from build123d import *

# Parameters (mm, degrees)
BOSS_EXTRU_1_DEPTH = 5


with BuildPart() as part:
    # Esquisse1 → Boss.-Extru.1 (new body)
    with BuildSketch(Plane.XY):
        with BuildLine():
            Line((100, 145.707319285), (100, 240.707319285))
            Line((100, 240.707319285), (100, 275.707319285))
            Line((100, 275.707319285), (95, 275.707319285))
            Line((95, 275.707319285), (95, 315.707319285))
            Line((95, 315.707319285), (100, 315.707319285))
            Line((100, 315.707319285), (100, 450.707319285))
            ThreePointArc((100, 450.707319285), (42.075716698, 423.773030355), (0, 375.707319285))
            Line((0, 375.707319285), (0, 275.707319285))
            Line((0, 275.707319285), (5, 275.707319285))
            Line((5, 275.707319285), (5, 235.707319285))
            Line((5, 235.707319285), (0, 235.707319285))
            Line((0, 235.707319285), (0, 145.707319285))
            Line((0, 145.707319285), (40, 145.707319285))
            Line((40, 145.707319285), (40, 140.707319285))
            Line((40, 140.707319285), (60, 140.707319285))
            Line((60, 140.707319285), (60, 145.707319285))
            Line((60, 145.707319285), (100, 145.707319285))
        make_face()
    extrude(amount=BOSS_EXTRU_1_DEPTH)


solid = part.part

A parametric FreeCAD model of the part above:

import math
import FreeCAD as App
import Part
import Sketcher

doc = App.newDocument("Part")
body = doc.addObject("PartDesign::Body", "Body")

sketch1 = body.newObject("Sketcher::SketchObject", "Sketch")
sketch1.AttachmentSupport = (doc.getObject("XY_Plane"), [""])
sketch1.MapMode = "FlatFace"
sketch1.addGeometry(Part.LineSegment(App.Vector(100, 145.707319, 0), App.Vector(100, 275.707319, 0)), False)
sketch1.addGeometry(Part.LineSegment(App.Vector(100, 275.707319, 0), App.Vector(95, 275.707319, 0)), False)
sketch1.addGeometry(Part.LineSegment(App.Vector(95, 275.707319, 0), App.Vector(95, 315.707319, 0)), False)
sketch1.addGeometry(Part.LineSegment(App.Vector(95, 315.707319, 0), App.Vector(100, 315.707319, 0)), False)
sketch1.addGeometry(Part.LineSegment(App.Vector(100, 315.707319, 0), App.Vector(100, 450.707319, 0)), False)
sketch1.addGeometry(Part.ArcOfCircle(Part.Circle(App.Vector(134.76828, 300.182946, 0), App.Vector(0, 0, 1), 154.487606), math.radians(103.00614), math.radians(150.733655)), False)
sketch1.addGeometry(Part.LineSegment(App.Vector(0, 375.707319, 0), App.Vector(0, 275.707319, 0)), False)
sketch1.addGeometry(Part.LineSegment(App.Vector(0, 275.707319, 0), App.Vector(5, 275.707319, 0)), False)
sketch1.addGeometry(Part.LineSegment(App.Vector(5, 275.707319, 0), App.Vector(5, 235.707319, 0)), False)
sketch1.addGeometry(Part.LineSegment(App.Vector(5, 235.707319, 0), App.Vector(0, 235.707319, 0)), False)
sketch1.addGeometry(Part.LineSegment(App.Vector(0, 235.707319, 0), App.Vector(0, 145.707319, 0)), False)
sketch1.addGeometry(Part.LineSegment(App.Vector(0, 145.707319, 0), App.Vector(40, 145.707319, 0)), False)
sketch1.addGeometry(Part.LineSegment(App.Vector(40, 145.707319, 0), App.Vector(40, 140.707319, 0)), False)
sketch1.addGeometry(Part.LineSegment(App.Vector(40, 140.707319, 0), App.Vector(60, 140.707319, 0)), False)
sketch1.addGeometry(Part.LineSegment(App.Vector(60, 140.707319, 0), App.Vector(60, 145.707319, 0)), False)
sketch1.addGeometry(Part.LineSegment(App.Vector(60, 145.707319, 0), App.Vector(100, 145.707319, 0)), False)
sketch1.addConstraint(Sketcher.Constraint("Coincident", 0, 2, 1, 1))
sketch1.addConstraint(Sketcher.Constraint("Coincident", 1, 2, 2, 1))
sketch1.addConstraint(Sketcher.Constraint("Coincident", 2, 2, 3, 1))
sketch1.addConstraint(Sketcher.Constraint("Coincident", 3, 2, 4, 1))
sketch1.addConstraint(Sketcher.Constraint("Coincident", 4, 2, 5, 1))
sketch1.addConstraint(Sketcher.Constraint("Coincident", 5, 2, 6, 1))
sketch1.addConstraint(Sketcher.Constraint("Coincident", 6, 2, 7, 1))
sketch1.addConstraint(Sketcher.Constraint("Coincident", 7, 2, 8, 1))
sketch1.addConstraint(Sketcher.Constraint("Coincident", 8, 2, 9, 1))
sketch1.addConstraint(Sketcher.Constraint("Coincident", 9, 2, 10, 1))
sketch1.addConstraint(Sketcher.Constraint("Coincident", 10, 2, 11, 1))
sketch1.addConstraint(Sketcher.Constraint("Coincident", 11, 2, 12, 1))
sketch1.addConstraint(Sketcher.Constraint("Coincident", 12, 2, 13, 1))
sketch1.addConstraint(Sketcher.Constraint("Coincident", 13, 2, 14, 1))
sketch1.addConstraint(Sketcher.Constraint("Coincident", 14, 2, 15, 1))
sketch1.addConstraint(Sketcher.Constraint("Coincident", 15, 2, 0, 1))
sketch1.addConstraint(Sketcher.Constraint("Vertical", 0))
sketch1.addConstraint(Sketcher.Constraint("Horizontal", 1))
sketch1.addConstraint(Sketcher.Constraint("Vertical", 2))
sketch1.addConstraint(Sketcher.Constraint("Horizontal", 3))
sketch1.addConstraint(Sketcher.Constraint("Vertical", 4))
sketch1.addConstraint(Sketcher.Constraint("Vertical", 6))
sketch1.addConstraint(Sketcher.Constraint("Horizontal", 7))
sketch1.addConstraint(Sketcher.Constraint("Vertical", 8))
sketch1.addConstraint(Sketcher.Constraint("Horizontal", 9))
sketch1.addConstraint(Sketcher.Constraint("Vertical", 10))
sketch1.addConstraint(Sketcher.Constraint("Horizontal", 11))
sketch1.addConstraint(Sketcher.Constraint("Vertical", 12))
sketch1.addConstraint(Sketcher.Constraint("Horizontal", 13))
sketch1.addConstraint(Sketcher.Constraint("Vertical", 14))
sketch1.addConstraint(Sketcher.Constraint("Horizontal", 15))
sketch1.addConstraint(Sketcher.Constraint("PointOnObject", 5, 2, -2))
sketch1.addConstraint(Sketcher.Constraint("PointOnObject", 9, 2, -2))
sketch1.addConstraint(Sketcher.Constraint("Horizontal", 1, 2, 6, 2))
sketch1.addConstraint(Sketcher.Constraint("Horizontal", 11, 2, 14, 2))
sketch1.addConstraint(Sketcher.Constraint("Vertical", 0, 2, 3, 2))
sketch1.addConstraint(Sketcher.Constraint("Equal", 3, 7))
sketch1.addConstraint(Sketcher.Constraint("Equal", 11, 15))
sketch1.addConstraint(Sketcher.Constraint("Equal", 15, 2))
sketch1.addConstraint(Sketcher.Constraint("Equal", 2, 8))
sketch1.addConstraint(Sketcher.Constraint("Equal", 9, 12))
sketch1.addConstraint(Sketcher.Constraint("DistanceX", 1, 2, 1, 1, 5.0))
sketch1.addConstraint(Sketcher.Constraint("DistanceX", 11, 1, 11, 2, 40.0))
sketch1.addConstraint(Sketcher.Constraint("DistanceX", 13, 1, 13, 2, 20.0))
sketch1.addConstraint(Sketcher.Constraint("DistanceY", 0, 1, 0, 2, 130.0))
sketch1.addConstraint(Sketcher.Constraint("DistanceY", 4, 1, 4, 2, 135.0))
sketch1.addConstraint(Sketcher.Constraint("DistanceY", 6, 2, 6, 1, 100.0))
sketch1.addConstraint(Sketcher.Constraint("Radius", 5, 154.487606))
sketch1.addConstraint(Sketcher.Constraint("DistanceY", -1, 1, 0, 2, 275.707319))
pad1 = body.newObject("PartDesign::Pad", "Pad")
pad1.Profile = sketch1
pad1.Length = 5

doc.recompute()
